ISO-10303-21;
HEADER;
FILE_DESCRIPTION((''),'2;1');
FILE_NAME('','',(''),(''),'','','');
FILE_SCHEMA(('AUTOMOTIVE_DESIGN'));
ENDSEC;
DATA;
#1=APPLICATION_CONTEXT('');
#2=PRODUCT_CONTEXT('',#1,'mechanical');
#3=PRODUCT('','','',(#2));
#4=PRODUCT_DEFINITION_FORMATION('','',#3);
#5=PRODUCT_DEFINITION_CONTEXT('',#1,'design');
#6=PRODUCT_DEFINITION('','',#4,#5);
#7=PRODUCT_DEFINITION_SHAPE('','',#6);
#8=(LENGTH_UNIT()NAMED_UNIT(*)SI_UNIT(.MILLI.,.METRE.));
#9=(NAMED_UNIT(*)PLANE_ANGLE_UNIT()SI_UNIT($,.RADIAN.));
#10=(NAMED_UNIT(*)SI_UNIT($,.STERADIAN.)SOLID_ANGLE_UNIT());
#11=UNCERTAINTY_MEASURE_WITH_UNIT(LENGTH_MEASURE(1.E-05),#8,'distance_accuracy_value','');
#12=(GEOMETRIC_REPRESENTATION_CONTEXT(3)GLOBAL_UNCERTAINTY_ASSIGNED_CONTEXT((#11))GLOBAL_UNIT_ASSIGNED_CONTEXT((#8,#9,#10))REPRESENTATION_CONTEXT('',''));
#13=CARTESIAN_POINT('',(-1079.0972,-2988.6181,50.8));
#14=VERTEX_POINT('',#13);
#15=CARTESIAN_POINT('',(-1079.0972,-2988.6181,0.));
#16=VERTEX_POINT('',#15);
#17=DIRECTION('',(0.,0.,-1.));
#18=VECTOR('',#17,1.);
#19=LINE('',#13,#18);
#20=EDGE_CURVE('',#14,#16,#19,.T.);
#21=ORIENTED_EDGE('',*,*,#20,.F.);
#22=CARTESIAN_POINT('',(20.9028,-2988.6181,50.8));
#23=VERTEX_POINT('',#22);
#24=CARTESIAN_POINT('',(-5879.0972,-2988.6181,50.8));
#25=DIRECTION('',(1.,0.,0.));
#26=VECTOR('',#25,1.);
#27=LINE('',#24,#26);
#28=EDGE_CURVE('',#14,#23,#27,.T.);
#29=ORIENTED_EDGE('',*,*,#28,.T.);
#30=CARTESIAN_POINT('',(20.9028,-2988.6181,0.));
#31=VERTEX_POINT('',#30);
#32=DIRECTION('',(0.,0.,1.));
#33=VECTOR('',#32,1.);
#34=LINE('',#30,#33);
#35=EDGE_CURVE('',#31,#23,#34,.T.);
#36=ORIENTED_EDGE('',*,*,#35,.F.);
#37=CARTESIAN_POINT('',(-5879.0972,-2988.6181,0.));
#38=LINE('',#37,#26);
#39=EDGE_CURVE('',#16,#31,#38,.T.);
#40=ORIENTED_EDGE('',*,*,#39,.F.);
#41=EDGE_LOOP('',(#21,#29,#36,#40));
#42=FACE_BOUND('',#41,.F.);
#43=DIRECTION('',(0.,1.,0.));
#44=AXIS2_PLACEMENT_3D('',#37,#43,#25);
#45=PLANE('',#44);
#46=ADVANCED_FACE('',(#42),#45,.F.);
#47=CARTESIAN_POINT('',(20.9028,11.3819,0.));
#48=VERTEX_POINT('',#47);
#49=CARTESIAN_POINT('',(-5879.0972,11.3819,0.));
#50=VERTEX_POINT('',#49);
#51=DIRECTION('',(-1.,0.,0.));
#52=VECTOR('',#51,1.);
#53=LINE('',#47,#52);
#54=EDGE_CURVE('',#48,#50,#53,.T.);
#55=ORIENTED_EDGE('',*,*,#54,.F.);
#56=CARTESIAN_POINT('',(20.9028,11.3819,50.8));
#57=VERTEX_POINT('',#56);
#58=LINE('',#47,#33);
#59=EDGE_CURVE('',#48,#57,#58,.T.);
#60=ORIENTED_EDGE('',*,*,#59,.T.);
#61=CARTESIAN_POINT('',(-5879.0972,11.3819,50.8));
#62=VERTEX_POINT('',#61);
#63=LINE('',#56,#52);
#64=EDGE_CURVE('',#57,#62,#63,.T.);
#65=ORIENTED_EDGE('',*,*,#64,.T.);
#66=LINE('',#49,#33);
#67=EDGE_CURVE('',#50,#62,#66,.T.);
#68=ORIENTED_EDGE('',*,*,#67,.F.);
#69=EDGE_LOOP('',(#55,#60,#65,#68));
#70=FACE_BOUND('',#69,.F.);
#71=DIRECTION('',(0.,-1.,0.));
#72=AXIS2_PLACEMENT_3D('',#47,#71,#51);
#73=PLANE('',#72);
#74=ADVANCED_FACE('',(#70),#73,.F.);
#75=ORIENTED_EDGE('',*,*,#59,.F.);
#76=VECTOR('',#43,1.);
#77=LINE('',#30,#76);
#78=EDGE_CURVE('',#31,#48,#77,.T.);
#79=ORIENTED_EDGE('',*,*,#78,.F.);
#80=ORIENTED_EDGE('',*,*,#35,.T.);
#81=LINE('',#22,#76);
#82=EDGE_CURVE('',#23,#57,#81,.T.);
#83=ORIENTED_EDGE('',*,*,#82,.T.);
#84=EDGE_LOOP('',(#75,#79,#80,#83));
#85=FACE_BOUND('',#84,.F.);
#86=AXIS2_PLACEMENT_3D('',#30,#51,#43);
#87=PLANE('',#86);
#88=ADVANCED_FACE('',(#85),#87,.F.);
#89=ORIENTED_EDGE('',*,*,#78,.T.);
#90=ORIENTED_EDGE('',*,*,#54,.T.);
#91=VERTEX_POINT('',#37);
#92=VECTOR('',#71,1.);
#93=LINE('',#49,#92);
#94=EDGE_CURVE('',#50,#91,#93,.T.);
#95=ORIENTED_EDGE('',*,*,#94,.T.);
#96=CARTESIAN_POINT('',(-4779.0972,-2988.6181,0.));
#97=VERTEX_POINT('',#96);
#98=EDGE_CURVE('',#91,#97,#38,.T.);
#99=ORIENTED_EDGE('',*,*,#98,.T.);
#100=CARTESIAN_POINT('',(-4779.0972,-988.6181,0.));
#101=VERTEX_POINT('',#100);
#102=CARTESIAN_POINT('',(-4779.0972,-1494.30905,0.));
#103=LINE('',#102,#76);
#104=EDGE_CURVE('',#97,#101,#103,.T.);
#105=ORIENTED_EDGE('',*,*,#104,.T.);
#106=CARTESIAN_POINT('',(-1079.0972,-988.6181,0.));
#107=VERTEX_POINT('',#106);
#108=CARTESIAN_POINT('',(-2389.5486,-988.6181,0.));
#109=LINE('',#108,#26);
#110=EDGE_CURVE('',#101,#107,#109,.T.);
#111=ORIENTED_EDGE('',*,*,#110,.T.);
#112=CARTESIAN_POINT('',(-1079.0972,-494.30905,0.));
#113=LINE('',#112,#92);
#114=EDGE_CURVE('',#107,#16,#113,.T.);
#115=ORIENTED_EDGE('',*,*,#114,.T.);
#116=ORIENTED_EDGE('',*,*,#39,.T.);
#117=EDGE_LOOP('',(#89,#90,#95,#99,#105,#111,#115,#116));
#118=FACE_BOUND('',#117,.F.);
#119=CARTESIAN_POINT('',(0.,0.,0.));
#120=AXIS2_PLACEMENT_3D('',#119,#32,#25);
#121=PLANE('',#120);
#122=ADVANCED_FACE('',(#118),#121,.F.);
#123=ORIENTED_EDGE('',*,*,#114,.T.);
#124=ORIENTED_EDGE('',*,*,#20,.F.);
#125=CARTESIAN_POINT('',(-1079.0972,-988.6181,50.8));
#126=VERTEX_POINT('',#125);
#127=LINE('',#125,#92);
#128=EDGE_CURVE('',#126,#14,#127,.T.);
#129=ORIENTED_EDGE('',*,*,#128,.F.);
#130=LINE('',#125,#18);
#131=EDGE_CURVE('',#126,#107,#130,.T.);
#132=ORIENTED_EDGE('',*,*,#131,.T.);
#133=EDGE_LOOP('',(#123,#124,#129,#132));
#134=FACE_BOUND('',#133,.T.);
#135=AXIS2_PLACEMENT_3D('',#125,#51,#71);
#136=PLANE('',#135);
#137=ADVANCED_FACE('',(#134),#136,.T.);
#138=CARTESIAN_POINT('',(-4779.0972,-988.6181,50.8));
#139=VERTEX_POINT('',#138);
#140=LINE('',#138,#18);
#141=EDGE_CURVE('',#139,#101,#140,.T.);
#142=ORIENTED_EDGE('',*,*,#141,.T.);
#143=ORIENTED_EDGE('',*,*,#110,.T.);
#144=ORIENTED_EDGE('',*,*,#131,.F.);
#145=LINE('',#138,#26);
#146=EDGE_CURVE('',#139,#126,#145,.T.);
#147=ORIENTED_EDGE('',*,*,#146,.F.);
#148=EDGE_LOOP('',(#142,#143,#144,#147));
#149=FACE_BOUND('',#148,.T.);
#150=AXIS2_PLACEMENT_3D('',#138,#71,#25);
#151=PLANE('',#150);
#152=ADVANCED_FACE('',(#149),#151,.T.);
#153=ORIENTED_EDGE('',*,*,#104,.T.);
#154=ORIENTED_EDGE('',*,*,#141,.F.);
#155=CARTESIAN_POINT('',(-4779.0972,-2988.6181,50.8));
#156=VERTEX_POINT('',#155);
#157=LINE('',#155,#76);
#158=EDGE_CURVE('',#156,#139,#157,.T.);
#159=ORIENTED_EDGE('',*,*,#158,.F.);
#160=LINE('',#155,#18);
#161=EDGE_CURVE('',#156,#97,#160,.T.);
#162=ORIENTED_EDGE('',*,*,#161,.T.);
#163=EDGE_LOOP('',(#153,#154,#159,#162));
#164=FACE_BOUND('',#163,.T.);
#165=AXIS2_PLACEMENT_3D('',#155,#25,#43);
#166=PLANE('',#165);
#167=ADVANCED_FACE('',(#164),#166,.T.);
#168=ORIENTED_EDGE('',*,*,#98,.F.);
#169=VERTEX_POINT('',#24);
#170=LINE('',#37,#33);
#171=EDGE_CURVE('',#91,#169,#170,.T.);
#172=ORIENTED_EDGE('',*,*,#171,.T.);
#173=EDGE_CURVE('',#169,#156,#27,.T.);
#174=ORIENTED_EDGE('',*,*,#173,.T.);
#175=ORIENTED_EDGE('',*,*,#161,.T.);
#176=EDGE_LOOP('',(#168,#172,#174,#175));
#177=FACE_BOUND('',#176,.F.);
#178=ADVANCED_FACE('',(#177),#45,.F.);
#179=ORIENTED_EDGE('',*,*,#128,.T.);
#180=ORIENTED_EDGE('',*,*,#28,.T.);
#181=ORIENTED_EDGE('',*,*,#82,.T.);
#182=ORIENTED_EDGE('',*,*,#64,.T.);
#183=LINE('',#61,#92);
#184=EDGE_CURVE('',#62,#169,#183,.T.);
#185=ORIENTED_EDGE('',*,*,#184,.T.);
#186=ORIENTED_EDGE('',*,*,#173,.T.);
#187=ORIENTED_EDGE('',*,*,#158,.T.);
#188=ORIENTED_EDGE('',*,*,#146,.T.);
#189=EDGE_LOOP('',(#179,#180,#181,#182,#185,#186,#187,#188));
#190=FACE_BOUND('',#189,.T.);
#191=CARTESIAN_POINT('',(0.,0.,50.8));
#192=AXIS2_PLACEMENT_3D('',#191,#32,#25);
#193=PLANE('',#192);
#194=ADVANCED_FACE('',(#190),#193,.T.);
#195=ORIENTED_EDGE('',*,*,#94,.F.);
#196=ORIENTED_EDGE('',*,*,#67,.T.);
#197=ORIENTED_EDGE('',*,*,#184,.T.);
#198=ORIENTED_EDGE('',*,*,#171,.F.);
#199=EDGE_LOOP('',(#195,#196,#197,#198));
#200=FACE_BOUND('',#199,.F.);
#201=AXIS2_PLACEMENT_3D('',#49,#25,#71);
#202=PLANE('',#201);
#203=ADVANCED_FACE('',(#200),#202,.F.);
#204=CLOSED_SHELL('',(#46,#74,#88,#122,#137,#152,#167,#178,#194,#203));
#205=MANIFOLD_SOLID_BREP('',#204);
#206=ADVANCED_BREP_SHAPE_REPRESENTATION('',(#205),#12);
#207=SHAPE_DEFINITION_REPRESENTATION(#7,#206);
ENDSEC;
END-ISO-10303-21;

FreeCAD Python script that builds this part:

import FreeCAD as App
import Part
import Sketcher

V = App.Vector
Q = App.Units.Quantity

doc = App.newDocument("Part")
body = doc.addObject("PartDesign::Body", "Body")

sketch1 = doc.addObject("Sketcher::SketchObject", "Sketch")
body.addObject(sketch1)
sketch1.AttachmentSupport = (doc.XY_Plane, [""])
sketch1.MapMode = "FlatFace"
sketch1.addGeometry([
    Part.LineSegment(V(-5879, 11, 0), V(-5879, -2989, 0)),
    Part.LineSegment(V(-5879, -2989, 0), V(21, -2989, 0)),
    Part.LineSegment(V(21, -2989, 0), V(21, 11, 0)),
    Part.LineSegment(V(21, 11, 0), V(-5879, 11, 0)),
], False)
sketch1.addConstraint([
    Sketcher.Constraint("Coincident", 0, 2, 1, 1),
    Sketcher.Constraint("Coincident", 1, 2, 2, 1),
    Sketcher.Constraint("Coincident", 2, 2, 3, 1),
    Sketcher.Constraint("Coincident", 3, 2, 0, 1),
    Sketcher.Constraint("Vertical", 0),
    Sketcher.Constraint("Horizontal", 1),
    Sketcher.Constraint("Vertical", 2),
    Sketcher.Constraint("Horizontal", 3),
    Sketcher.Constraint("DistanceX", 1, 1, 1, 2, Q("5900 mm")),
    Sketcher.Constraint("DistanceY", 0, 2, 0, 1, Q("3000 mm")),
    Sketcher.Constraint("DistanceY", 0, 2, -1, 1, Q("2988.618 mm")),
    Sketcher.Constraint("DistanceX", 0, 2, -1, 1, Q("5879.0972 mm")),
])
pad1 = doc.addObject("PartDesign::Pad", "Pad")
body.addObject(pad1)
pad1.Profile = sketch1
pad1.Length = 50.8

sketch2 = doc.addObject("Sketcher::SketchObject", "Sketch001")
body.addObject(sketch2)
sketch2.AttachmentSupport = (doc.XY_Plane, [""])
sketch2.MapMode = "FlatFace"
sketch2.AttachmentOffset = App.Placement(V(0, 0, 50.8), App.Rotation())
sketch2.addGeometry([
    Part.LineSegment(V(-4779, -989, 0), V(-4779, -2989, 0)),
    Part.LineSegment(V(-4779, -2989, 0), V(-1079, -2989, 0)),
    Part.LineSegment(V(-1079, -2989, 0), V(-1079, -989, 0)),
    Part.LineSegment(V(-1079, -989, 0), V(-4779, -989, 0)),
], False)
sketch2.addConstraint([
    Sketcher.Constraint("Coincident", 0, 2, 1, 1),
    Sketcher.Constraint("Coincident", 1, 2, 2, 1),
    Sketcher.Constraint("Coincident", 2, 2, 3, 1),
    Sketcher.Constraint("Coincident", 3, 2, 0, 1),
    Sketcher.Constraint("Vertical", 0),
    Sketcher.Constraint("Horizontal", 1),
    Sketcher.Constraint("Vertical", 2),
    Sketcher.Constraint("Horizontal", 3),
    Sketcher.Constraint("DistanceX", 1, 1, 1, 2, Q("3700 mm")),
    Sketcher.Constraint("DistanceY", 0, 2, 0, 1, Q("2000 mm")),
    Sketcher.Constraint("DistanceY", 0, 2, -1, 1, Q("2988.618 mm")),
    Sketcher.Constraint("DistanceX", 0, 2, -1, 1, Q("4779.0972 mm")),
])
pocket1 = doc.addObject("PartDesign::Pocket", "Pocket")
body.addObject(pocket1)
pocket1.Profile = sketch2
pocket1.Type = "ThroughAll"

doc.recompute()
